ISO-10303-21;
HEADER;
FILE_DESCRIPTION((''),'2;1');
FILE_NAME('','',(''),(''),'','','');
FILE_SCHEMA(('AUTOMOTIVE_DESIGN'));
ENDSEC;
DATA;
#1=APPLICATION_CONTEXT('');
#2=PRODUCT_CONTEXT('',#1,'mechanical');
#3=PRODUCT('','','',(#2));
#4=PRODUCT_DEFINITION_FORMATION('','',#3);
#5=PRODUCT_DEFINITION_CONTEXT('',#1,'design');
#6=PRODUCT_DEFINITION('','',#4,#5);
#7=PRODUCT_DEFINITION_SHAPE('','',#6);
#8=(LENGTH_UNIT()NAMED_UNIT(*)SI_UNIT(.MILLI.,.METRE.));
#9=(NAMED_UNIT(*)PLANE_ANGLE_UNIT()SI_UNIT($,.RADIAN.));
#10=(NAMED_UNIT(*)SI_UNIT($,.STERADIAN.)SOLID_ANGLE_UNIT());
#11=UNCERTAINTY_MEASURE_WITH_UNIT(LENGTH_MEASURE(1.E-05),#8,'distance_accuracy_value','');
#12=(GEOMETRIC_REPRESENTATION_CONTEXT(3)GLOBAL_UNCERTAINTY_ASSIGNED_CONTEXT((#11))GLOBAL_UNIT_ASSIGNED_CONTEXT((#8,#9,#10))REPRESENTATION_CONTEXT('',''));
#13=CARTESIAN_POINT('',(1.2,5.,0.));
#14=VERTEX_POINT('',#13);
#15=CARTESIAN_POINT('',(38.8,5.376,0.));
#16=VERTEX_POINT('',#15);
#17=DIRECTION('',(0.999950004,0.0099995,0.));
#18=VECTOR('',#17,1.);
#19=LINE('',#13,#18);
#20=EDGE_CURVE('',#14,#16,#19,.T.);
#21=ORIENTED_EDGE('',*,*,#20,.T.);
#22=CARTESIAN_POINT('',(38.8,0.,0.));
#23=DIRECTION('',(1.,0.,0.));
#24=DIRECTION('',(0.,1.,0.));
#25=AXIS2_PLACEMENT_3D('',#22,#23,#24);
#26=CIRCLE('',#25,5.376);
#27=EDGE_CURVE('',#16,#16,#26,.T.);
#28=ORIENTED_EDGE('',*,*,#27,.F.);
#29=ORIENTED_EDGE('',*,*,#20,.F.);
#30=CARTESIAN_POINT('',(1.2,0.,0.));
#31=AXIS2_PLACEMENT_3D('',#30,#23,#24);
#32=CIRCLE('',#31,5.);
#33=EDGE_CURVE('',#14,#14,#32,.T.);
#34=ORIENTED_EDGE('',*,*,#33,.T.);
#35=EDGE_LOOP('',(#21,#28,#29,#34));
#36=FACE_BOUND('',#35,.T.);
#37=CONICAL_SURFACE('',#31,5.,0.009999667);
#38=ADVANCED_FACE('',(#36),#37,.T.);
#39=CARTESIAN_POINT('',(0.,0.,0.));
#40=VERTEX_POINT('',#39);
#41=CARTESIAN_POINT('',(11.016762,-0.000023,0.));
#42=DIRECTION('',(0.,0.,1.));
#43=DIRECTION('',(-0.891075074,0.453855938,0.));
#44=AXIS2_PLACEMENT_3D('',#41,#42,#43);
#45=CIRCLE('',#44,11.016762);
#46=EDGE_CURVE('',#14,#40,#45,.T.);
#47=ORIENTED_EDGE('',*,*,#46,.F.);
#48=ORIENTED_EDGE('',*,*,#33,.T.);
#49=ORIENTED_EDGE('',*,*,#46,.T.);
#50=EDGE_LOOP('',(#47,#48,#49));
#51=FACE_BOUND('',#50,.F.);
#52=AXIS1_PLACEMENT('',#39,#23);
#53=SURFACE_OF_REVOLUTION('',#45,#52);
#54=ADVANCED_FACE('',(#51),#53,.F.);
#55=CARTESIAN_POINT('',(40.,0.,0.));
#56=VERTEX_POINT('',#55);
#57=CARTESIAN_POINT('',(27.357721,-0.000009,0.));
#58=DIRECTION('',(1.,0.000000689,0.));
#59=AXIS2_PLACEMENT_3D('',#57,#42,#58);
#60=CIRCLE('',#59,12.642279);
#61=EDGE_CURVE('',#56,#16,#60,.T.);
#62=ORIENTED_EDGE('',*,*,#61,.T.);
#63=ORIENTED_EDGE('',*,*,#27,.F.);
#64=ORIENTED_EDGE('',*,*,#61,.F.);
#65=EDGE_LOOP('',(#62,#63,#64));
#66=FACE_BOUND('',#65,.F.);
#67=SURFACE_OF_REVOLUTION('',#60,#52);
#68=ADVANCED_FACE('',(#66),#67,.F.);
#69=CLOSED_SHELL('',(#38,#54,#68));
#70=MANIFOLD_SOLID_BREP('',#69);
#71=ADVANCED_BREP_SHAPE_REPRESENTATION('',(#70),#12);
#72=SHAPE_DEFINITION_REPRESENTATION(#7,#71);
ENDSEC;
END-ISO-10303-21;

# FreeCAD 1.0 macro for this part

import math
import FreeCAD as App
import Part
import Sketcher
from FreeCAD import Vector

doc = App.newDocument("Part")
body = doc.addObject("PartDesign::Body", "Body")

sketch1 = body.newObject("Sketcher::SketchObject", "Sketch")
sketch1.AttachmentSupport = (doc.getObject("XY_Plane"), [""])
sketch1.MapMode = "FlatFace"
sketch1.addGeometry(Part.ArcOfCircle(Part.Circle(Vector(11, 0, 0), Vector(0, 0, 1), 11), math.radians(153), math.radians(180)), False)
sketch1.addGeometry(Part.LineSegment(Vector(0, 0, 0), Vector(40, 0, 0)), False)
sketch1.addGeometry(Part.ArcOfCircle(Part.Circle(Vector(27, 0, 0), Vector(0, 0, 1), 13), math.radians(0), math.radians(25)), False)
sketch1.addGeometry(Part.LineSegment(Vector(39, 5, 0), Vector(1, 5, 0)), False)
sketch1.addConstraint(Sketcher.Constraint("Coincident", 0, 2, 1, 1))
sketch1.addConstraint(Sketcher.Constraint("Coincident", 1, 2, 2, 1))
sketch1.addConstraint(Sketcher.Constraint("Coincident", 2, 2, 3, 1))
sketch1.addConstraint(Sketcher.Constraint("Coincident", 3, 2, 0, 1))
sketch1.addConstraint(Sketcher.Constraint("Horizontal", 1))
sketch1.addConstraint(Sketcher.Constraint("Coincident", 0, 2, -1, 1))
sketch1.addConstraint(Sketcher.Constraint("PointOnObject", 0, 3, -1))
sketch1.addConstraint(Sketcher.Constraint("PointOnObject", 2, 3, -1))
sketch1.addConstraint(Sketcher.Constraint("DistanceX", 1, 1, 1, 2, 40.0))
sketch1.addConstraint(Sketcher.Constraint("DistanceX", -1, 1, 3, 2, 1.2))
sketch1.addConstraint(Sketcher.Constraint("DistanceX", 2, 2, 1, 2, 1.2))
sketch1.addConstraint(Sketcher.Constraint("DistanceY", -1, 1, 3, 2, 5.0))
sketch1.addConstraint(Sketcher.Constraint("Radius", 2, 12.6422))
revolution = body.newObject("PartDesign::Revolution", "Revolution")
revolution.Profile = sketch1
revolution.ReferenceAxis = (sketch1, ["H_Axis"])
revolution.Angle = 360

doc.recompute()
